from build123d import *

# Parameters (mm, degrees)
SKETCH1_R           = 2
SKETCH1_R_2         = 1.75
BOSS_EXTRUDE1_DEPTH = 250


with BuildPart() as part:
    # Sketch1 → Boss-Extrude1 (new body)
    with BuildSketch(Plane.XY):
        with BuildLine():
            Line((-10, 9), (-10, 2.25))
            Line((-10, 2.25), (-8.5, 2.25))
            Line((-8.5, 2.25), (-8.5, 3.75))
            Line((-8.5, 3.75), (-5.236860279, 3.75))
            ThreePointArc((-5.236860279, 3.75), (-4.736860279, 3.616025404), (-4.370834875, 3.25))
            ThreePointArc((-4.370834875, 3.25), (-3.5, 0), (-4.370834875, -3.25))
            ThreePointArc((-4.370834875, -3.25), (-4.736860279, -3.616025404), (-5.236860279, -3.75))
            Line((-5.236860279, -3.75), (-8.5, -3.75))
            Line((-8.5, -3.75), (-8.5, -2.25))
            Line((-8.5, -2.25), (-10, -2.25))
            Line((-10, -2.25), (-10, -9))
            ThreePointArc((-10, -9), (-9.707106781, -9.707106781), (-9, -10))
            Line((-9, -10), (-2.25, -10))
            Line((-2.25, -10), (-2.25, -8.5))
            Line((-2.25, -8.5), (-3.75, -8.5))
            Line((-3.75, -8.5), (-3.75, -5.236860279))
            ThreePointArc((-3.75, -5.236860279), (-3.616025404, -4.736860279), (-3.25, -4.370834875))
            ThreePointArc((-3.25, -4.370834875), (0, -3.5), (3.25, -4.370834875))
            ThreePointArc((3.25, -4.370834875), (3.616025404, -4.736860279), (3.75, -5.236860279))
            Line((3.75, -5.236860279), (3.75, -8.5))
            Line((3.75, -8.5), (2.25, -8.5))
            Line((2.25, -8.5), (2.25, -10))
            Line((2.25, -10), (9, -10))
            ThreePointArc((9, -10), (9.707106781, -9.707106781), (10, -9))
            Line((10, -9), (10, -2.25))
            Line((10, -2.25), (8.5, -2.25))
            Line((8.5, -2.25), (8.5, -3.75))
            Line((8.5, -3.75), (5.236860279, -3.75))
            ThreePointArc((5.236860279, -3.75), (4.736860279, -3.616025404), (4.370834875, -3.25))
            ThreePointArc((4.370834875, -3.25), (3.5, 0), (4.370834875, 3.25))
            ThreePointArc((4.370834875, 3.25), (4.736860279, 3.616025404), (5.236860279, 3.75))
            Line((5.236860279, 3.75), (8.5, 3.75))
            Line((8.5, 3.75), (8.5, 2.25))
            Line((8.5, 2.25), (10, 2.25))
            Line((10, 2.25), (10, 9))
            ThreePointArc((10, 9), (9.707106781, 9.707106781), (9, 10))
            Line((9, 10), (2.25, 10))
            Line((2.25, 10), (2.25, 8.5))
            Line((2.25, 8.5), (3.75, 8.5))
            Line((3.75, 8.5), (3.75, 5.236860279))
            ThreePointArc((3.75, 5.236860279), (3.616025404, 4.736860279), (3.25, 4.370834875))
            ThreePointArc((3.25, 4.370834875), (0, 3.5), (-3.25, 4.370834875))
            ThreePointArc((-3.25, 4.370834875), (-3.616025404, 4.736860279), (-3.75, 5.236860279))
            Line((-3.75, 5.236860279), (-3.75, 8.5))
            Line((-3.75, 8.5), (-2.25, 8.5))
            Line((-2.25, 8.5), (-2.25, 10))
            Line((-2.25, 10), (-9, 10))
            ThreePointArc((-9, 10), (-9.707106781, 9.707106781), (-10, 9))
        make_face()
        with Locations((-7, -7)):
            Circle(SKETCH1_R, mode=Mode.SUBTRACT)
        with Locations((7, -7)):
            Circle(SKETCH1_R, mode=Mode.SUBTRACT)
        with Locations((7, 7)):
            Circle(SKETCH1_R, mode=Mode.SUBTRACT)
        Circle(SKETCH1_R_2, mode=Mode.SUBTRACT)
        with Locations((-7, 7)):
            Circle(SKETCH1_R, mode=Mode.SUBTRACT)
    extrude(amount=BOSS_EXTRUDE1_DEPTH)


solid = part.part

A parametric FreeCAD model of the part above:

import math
import FreeCAD as App
import Part
import Sketcher
from FreeCAD import Vector

doc = App.newDocument("Part")
body = doc.addObject("PartDesign::Body", "Body")

sketch1 = body.newObject("Sketcher::SketchObject", "Sketch")
sketch1.AttachmentSupport = (doc.getObject("XY_Plane"), [""])
sketch1.MapMode = "FlatFace"
sketch1.addGeometry(Part.LineSegment(Vector(-10, 9, 0), Vector(-10, 2.2, 0)), False)
sketch1.addGeometry(Part.LineSegment(Vector(-10, 2.2, 0), Vector(-8.5, 2.2, 0)), False)
sketch1.addGeometry(Part.LineSegment(Vector(-8.5, 2.2, 0), Vector(-8.5, 3.8, 0)), False)
sketch1.addGeometry(Part.LineSegment(Vector(-8.5, 3.8, 0), Vector(-5.2, 3.8, 0)), False)
sketch1.addGeometry(Part.ArcOfCircle(Part.Circle(Vector(-5.2, 2.8, 0), Vector(0, 0, 1), 1), math.radians(30), math.radians(90)), False)
sketch1.addGeometry(Part.ArcOfCircle(Part.Circle(Vector(-10, 0, 0), Vector(0, 0, 1), 6.5), math.radians(-30), math.radians(30)), False)
sketch1.addGeometry(Part.ArcOfCircle(Part.Circle(Vector(-5.2, -2.8, 0), Vector(0, 0, 1), 1), math.radians(-90), math.radians(-30)), False)
sketch1.addGeometry(Part.LineSegment(Vector(-5.2, -3.8, 0), Vector(-8.5, -3.8, 0)), False)
sketch1.addGeometry(Part.LineSegment(Vector(-8.5, -3.8, 0), Vector(-8.5, -2.2, 0)), False)
sketch1.addGeometry(Part.LineSegment(Vector(-8.5, -2.2, 0), Vector(-10, -2.2, 0)), False)
sketch1.addGeometry(Part.LineSegment(Vector(-10, -2.2, 0), Vector(-10, -9, 0)), False)
sketch1.addGeometry(Part.ArcOfCircle(Part.Circle(Vector(-9, -9, 0), Vector(0, 0, 1), 1), math.radians(-180), math.radians(-90)), False)
sketch1.addGeometry(Part.LineSegment(Vector(-9, -10, 0), Vector(-2.2, -10, 0)), False)
sketch1.addGeometry(Part.LineSegment(Vector(-2.2, -10, 0), Vector(-2.2, -8.5, 0)), False)
sketch1.addGeometry(Part.LineSegment(Vector(-2.2, -8.5, 0), Vector(-3.8, -8.5, 0)), False)
sketch1.addGeometry(Part.LineSegment(Vector(-3.8, -8.5, 0), Vector(-3.8, -5.2, 0)), False)
sketch1.addGeometry(Part.ArcOfCircle(Part.Circle(Vector(-2.8, -5.2, 0), Vector(0, 0, 1), 1), math.radians(120), math.radians(180)), False)
sketch1.addGeometry(Part.ArcOfCircle(Part.Circle(Vector(0, -10, 0), Vector(0, 0, 1), 6.5), math.radians(60), math.radians(120)), False)
sketch1.addGeometry(Part.ArcOfCircle(Part.Circle(Vector(2.8, -5.2, 0), Vector(0, 0, 1), 1), math.radians(0), math.radians(60)), False)
sketch1.addGeometry(Part.LineSegment(Vector(3.8, -5.2, 0), Vector(3.8, -8.5, 0)), False)
sketch1.addGeometry(Part.LineSegment(Vector(3.8, -8.5, 0), Vector(2.2, -8.5, 0)), False)
sketch1.addGeometry(Part.LineSegment(Vector(2.2, -8.5, 0), Vector(2.2, -10, 0)), False)
sketch1.addGeometry(Part.LineSegment(Vector(2.2, -10, 0), Vector(9, -10, 0)), False)
sketch1.addGeometry(Part.ArcOfCircle(Part.Circle(Vector(9, -9, 0), Vector(0, 0, 1), 1), math.radians(-90), math.radians(0)), False)
sketch1.addGeometry(Part.LineSegment(Vector(10, -9, 0), Vector(10, -2.2, 0)), False)
sketch1.addGeometry(Part.LineSegment(Vector(10, -2.2, 0), Vector(8.5, -2.2, 0)), False)
sketch1.addGeometry(Part.LineSegment(Vector(8.5, -2.2, 0), Vector(8.5, -3.8, 0)), False)
sketch1.addGeometry(Part.LineSegment(Vector(8.5, -3.8, 0), Vector(5.2, -3.8, 0)), False)
sketch1.addGeometry(Part.ArcOfCircle(Part.Circle(Vector(5.2, -2.8, 0), Vector(0, 0, 1), 1), math.radians(-150), math.radians(-90)), False)
sketch1.addGeometry(Part.ArcOfCircle(Part.Circle(Vector(10, 0, 0), Vector(0, 0, 1), 6.5), math.radians(150), math.radians(210)), False)
sketch1.addGeometry(Part.ArcOfCircle(Part.Circle(Vector(5.2, 2.8, 0), Vector(0, 0, 1), 1), math.radians(90), math.radians(150)), False)
sketch1.addGeometry(Part.LineSegment(Vector(5.2, 3.8, 0), Vector(8.5, 3.8, 0)), False)
sketch1.addGeometry(Part.LineSegment(Vector(8.5, 3.8, 0), Vector(8.5, 2.2, 0)), False)
sketch1.addGeometry(Part.LineSegment(Vector(8.5, 2.2, 0), Vector(10, 2.2, 0)), False)
sketch1.addGeometry(Part.LineSegment(Vector(10, 2.2, 0), Vector(10, 9, 0)), False)
sketch1.addGeometry(Part.ArcOfCircle(Part.Circle(Vector(9, 9, 0), Vector(0, 0, 1), 1), math.radians(0), math.radians(90)), False)
sketch1.addGeometry(Part.LineSegment(Vector(9, 10, 0), Vector(2.2, 10, 0)), False)
sketch1.addGeometry(Part.LineSegment(Vector(2.2, 10, 0), Vector(2.2, 8.5, 0)), False)
sketch1.addGeometry(Part.LineSegment(Vector(2.2, 8.5, 0), Vector(3.8, 8.5, 0)), False)
sketch1.addGeometry(Part.LineSegment(Vector(3.8, 8.5, 0), Vector(3.8, 5.2, 0)), False)
sketch1.addGeometry(Part.ArcOfCircle(Part.Circle(Vector(2.8, 5.2, 0), Vector(0, 0, 1), 1), math.radians(-60), math.radians(0)), False)
sketch1.addGeometry(Part.ArcOfCircle(Part.Circle(Vector(0, 10, 0), Vector(0, 0, 1), 6.5), math.radians(-120), math.radians(-60)), False)
sketch1.addGeometry(Part.ArcOfCircle(Part.Circle(Vector(-2.8, 5.2, 0), Vector(0, 0, 1), 1), math.radians(180), math.radians(240)), False)
sketch1.addGeometry(Part.LineSegment(Vector(-3.8, 5.2, 0), Vector(-3.8, 8.5, 0)), False)
sketch1.addGeometry(Part.LineSegment(Vector(-3.8, 8.5, 0), Vector(-2.2, 8.5, 0)), False)
sketch1.addGeometry(Part.LineSegment(Vector(-2.2, 8.5, 0), Vector(-2.2, 10, 0)), False)
sketch1.addGeometry(Part.LineSegment(Vector(-2.2, 10, 0), Vector(-9, 10, 0)), False)
sketch1.addGeometry(Part.ArcOfCircle(Part.Circle(Vector(-9, 9, 0), Vector(0, 0, 1), 1), math.radians(90), math.radians(180)), False)
sketch1.addGeometry(Part.Circle(Vector(-7, -7, 0), Vector(0, 0, 1), 2), False)
sketch1.addGeometry(Part.Circle(Vector(7, -7, 0), Vector(0, 0, 1), 2), False)
sketch1.addGeometry(Part.Circle(Vector(-7, 7, 0), Vector(0, 0, 1), 2), False)
sketch1.addGeometry(Part.Circle(Vector(0, 0, 0), Vector(0, 0, 1), 1.8), False)
sketch1.addGeometry(Part.Circle(Vector(7, 7, 0), Vector(0, 0, 1), 2), False)
sketch1.addConstraint(Sketcher.Constraint("Coincident", 0, 2, 1, 1))
sketch1.addConstraint(Sketcher.Constraint("Coincident", 1, 2, 2, 1))
sketch1.addConstraint(Sketcher.Constraint("Coincident", 2, 2, 3, 1))
sketch1.addConstraint(Sketcher.Constraint("Tangent", 3, 2, 4, 2))
sketch1.addConstraint(Sketcher.Constraint("Tangent", 4, 1, 5, 2))
sketch1.addConstraint(Sketcher.Constraint("Tangent", 5, 1, 6, 2))
sketch1.addConstraint(Sketcher.Constraint("Tangent", 6, 1, 7, 1))
sketch1.addConstraint(Sketcher.Constraint("Coincident", 7, 2, 8, 1))
sketch1.addConstraint(Sketcher.Constraint("Coincident", 8, 2, 9, 1))
sketch1.addConstraint(Sketcher.Constraint("Coincident", 9, 2, 10, 1))
sketch1.addConstraint(Sketcher.Constraint("Tangent", 10, 2, 11, 1))
sketch1.addConstraint(Sketcher.Constraint("Tangent", 11, 2, 12, 1))
sketch1.addConstraint(Sketcher.Constraint("Coincident", 12, 2, 13, 1))
sketch1.addConstraint(Sketcher.Constraint("Coincident", 13, 2, 14, 1))
sketch1.addConstraint(Sketcher.Constraint("Coincident", 14, 2, 15, 1))
sketch1.addConstraint(Sketcher.Constraint("Tangent", 15, 2, 16, 2))
sketch1.addConstraint(Sketcher.Constraint("Tangent", 16, 1, 17, 2))
sketch1.addConstraint(Sketcher.Constraint("Tangent", 17, 1, 18, 2))
sketch1.addConstraint(Sketcher.Constraint("Tangent", 18, 1, 19, 1))
sketch1.addConstraint(Sketcher.Constraint("Coincident", 19, 2, 20, 1))
sketch1.addConstraint(Sketcher.Constraint("Coincident", 20, 2, 21, 1))
sketch1.addConstraint(Sketcher.Constraint("Coincident", 21, 2, 22, 1))
sketch1.addConstraint(Sketcher.Constraint("Tangent", 22, 2, 23, 1))
sketch1.addConstraint(Sketcher.Constraint("Tangent", 23, 2, 24, 1))
sketch1.addConstraint(Sketcher.Constraint("Coincident", 24, 2, 25, 1))
sketch1.addConstraint(Sketcher.Constraint("Coincident", 25, 2, 26, 1))
sketch1.addConstraint(Sketcher.Constraint("Coincident", 26, 2, 27, 1))
sketch1.addConstraint(Sketcher.Constraint("Tangent", 27, 2, 28, 2))
sketch1.addConstraint(Sketcher.Constraint("Tangent", 28, 1, 29, 2))
sketch1.addConstraint(Sketcher.Constraint("Tangent", 29, 1, 30, 2))
sketch1.addConstraint(Sketcher.Constraint("Tangent", 30, 1, 31, 1))
sketch1.addConstraint(Sketcher.Constraint("Coincident", 31, 2, 32, 1))
sketch1.addConstraint(Sketcher.Constraint("Coincident", 32, 2, 33, 1))
sketch1.addConstraint(Sketcher.Constraint("Coincident", 33, 2, 34, 1))
sketch1.addConstraint(Sketcher.Constraint("Tangent", 34, 2, 35, 1))
sketch1.addConstraint(Sketcher.Constraint("Tangent", 35, 2, 36, 1))
sketch1.addConstraint(Sketcher.Constraint("Coincident", 36, 2, 37, 1))
sketch1.addConstraint(Sketcher.Constraint("Coincident", 37, 2, 38, 1))
sketch1.addConstraint(Sketcher.Constraint("Coincident", 38, 2, 39, 1))
sketch1.addConstraint(Sketcher.Constraint("Tangent", 39, 2, 40, 2))
sketch1.addConstraint(Sketcher.Constraint("Tangent", 40, 1, 41, 2))
sketch1.addConstraint(Sketcher.Constraint("Tangent", 41, 1, 42, 2))
sketch1.addConstraint(Sketcher.Constraint("Tangent", 42, 1, 43, 1))
sketch1.addConstraint(Sketcher.Constraint("Coincident", 43, 2, 44, 1))
sketch1.addConstraint(Sketcher.Constraint("Coincident", 44, 2, 45, 1))
sketch1.addConstraint(Sketcher.Constraint("Coincident", 45, 2, 46, 1))
sketch1.addConstraint(Sketcher.Constraint("Tangent", 46, 2, 47, 1))
sketch1.addConstraint(Sketcher.Constraint("Tangent", 47, 2, 0, 1))
sketch1.addConstraint(Sketcher.Constraint("Vertical", 0))
sketch1.addConstraint(Sketcher.Constraint("Horizontal", 1))
sketch1.addConstraint(Sketcher.Constraint("Vertical", 2))
sketch1.addConstraint(Sketcher.Constraint("Horizontal", 3))
sketch1.addConstraint(Sketcher.Constraint("Horizontal", 7))
sketch1.addConstraint(Sketcher.Constraint("Vertical", 8))
sketch1.addConstraint(Sketcher.Constraint("Horizontal", 9))
sketch1.addConstraint(Sketcher.Constraint("Vertical", 10))
sketch1.addConstraint(Sketcher.Constraint("Horizontal", 12))
sketch1.addConstraint(Sketcher.Constraint("Vertical", 13))
sketch1.addConstraint(Sketcher.Constraint("Horizontal", 14))
sketch1.addConstraint(Sketcher.Constraint("Vertical", 15))
sketch1.addConstraint(Sketcher.Constraint("Vertical", 19))
sketch1.addConstraint(Sketcher.Constraint("Horizontal", 20))
sketch1.addConstraint(Sketcher.Constraint("Vertical", 21))
sketch1.addConstraint(Sketcher.Constraint("Horizontal", 22))
sketch1.addConstraint(Sketcher.Constraint("Vertical", 24))
sketch1.addConstraint(Sketcher.Constraint("Horizontal", 25))
sketch1.addConstraint(Sketcher.Constraint("Vertical", 26))
sketch1.addConstraint(Sketcher.Constraint("Horizontal", 27))
sketch1.addConstraint(Sketcher.Constraint("Horizontal", 31))
sketch1.addConstraint(Sketcher.Constraint("Vertical", 32))
sketch1.addConstraint(Sketcher.Constraint("Horizontal", 33))
sketch1.addConstraint(Sketcher.Constraint("Vertical", 34))
sketch1.addConstraint(Sketcher.Constraint("Horizontal", 36))
sketch1.addConstraint(Sketcher.Constraint("Vertical", 37))
sketch1.addConstraint(Sketcher.Constraint("Horizontal", 38))
sketch1.addConstraint(Sketcher.Constraint("Vertical", 39))
sketch1.addConstraint(Sketcher.Constraint("Vertical", 43))
sketch1.addConstraint(Sketcher.Constraint("Horizontal", 44))
sketch1.addConstraint(Sketcher.Constraint("Vertical", 45))
sketch1.addConstraint(Sketcher.Constraint("Horizontal", 46))
sketch1.addConstraint(Sketcher.Constraint("Coincident", 51, 3, -1, 1))
sketch1.addConstraint(Sketcher.Constraint("Equal", 4, 6))
sketch1.addConstraint(Sketcher.Constraint("Equal", 6, 11))
sketch1.addConstraint(Sketcher.Constraint("Equal", 11, 16))
sketch1.addConstraint(Sketcher.Constraint("Equal", 5, 17))
sketch1.addConstraint(Sketcher.Constraint("Equal", 16, 18))
sketch1.addConstraint(Sketcher.Constraint("Equal", 18, 23))
sketch1.addConstraint(Sketcher.Constraint("Equal", 23, 28))
sketch1.addConstraint(Sketcher.Constraint("Equal", 17, 29))
sketch1.addConstraint(Sketcher.Constraint("Equal", 28, 30))
sketch1.addConstraint(Sketcher.Constraint("Equal", 30, 35))
sketch1.addConstraint(Sketcher.Constraint("Equal", 35, 40))
sketch1.addConstraint(Sketcher.Constraint("Equal", 29, 41))
sketch1.addConstraint(Sketcher.Constraint("Equal", 40, 42))
sketch1.addConstraint(Sketcher.Constraint("Equal", 42, 47))
sketch1.addConstraint(Sketcher.Constraint("Equal", 48, 49))
sketch1.addConstraint(Sketcher.Constraint("Equal", 49, 50))
sketch1.addConstraint(Sketcher.Constraint("Equal", 50, 52))
sketch1.addConstraint(Sketcher.Constraint("Symmetric", 4, 3, 28, 3, -1, 1))
sketch1.addConstraint(Sketcher.Constraint("Symmetric", 6, 3, 30, 3, -1, 1))
sketch1.addConstraint(Sketcher.Constraint("Symmetric", 11, 3, 35, 3, -1, 1))
sketch1.addConstraint(Sketcher.Constraint("Symmetric", 16, 3, 40, 3, -1, 1))
sketch1.addConstraint(Sketcher.Constraint("Symmetric", 18, 3, 42, 3, -1, 1))
sketch1.addConstraint(Sketcher.Constraint("Symmetric", 23, 3, 47, 3, -1, 1))
sketch1.addConstraint(Sketcher.Constraint("Symmetric", 49, 3, 50, 3, -1, 1))
sketch1.addConstraint(Sketcher.Constraint("Symmetric", 48, 3, 52, 3, -1, 1))
sketch1.addConstraint(Sketcher.Constraint("Symmetric", 1, 2, 25, 2, -1, 1))
sketch1.addConstraint(Sketcher.Constraint("Symmetric", 8, 2, 32, 2, -1, 1))
sketch1.addConstraint(Sketcher.Constraint("Symmetric", 13, 2, 37, 2, -1, 1))
sketch1.addConstraint(Sketcher.Constraint("Symmetric", 20, 2, 44, 2, -1, 1))
sketch1.addConstraint(Sketcher.Constraint("Symmetric", 16, 3, 18, 3, -2))
sketch1.addConstraint(Sketcher.Constraint("Symmetric", 11, 3, 23, 3, -2))
sketch1.addConstraint(Sketcher.Constraint("Symmetric", 6, 3, 28, 3, -2))
sketch1.addConstraint(Sketcher.Constraint("Symmetric", 48, 3, 49, 3, -2))
sketch1.addConstraint(Sketcher.Constraint("Symmetric", 13, 2, 20, 2, -2))
sketch1.addConstraint(Sketcher.Constraint("Symmetric", 8, 2, 25, 2, -2))
sketch1.addConstraint(Sketcher.Constraint("Horizontal", 17, 3, 11, 2))
sketch1.addConstraint(Sketcher.Constraint("Vertical", 5, 3, 0, 2))
sketch1.addConstraint(Sketcher.Constraint("Equal", 9, 14))
sketch1.addConstraint(Sketcher.Constraint("Equal", 46, 0))
sketch1.addConstraint(Sketcher.Constraint("Equal", 44, 2))
sketch1.addConstraint(Sketcher.Constraint("Equal", 8, 13))
sketch1.addConstraint(Sketcher.Constraint("Equal", 31, 15))
sketch1.addConstraint(Sketcher.Constraint("Diameter", 48, 4.0))
sketch1.addConstraint(Sketcher.Constraint("Radius", 4, 1.0))
sketch1.addConstraint(Sketcher.Constraint("Diameter", 51, 3.5))
sketch1.addConstraint(Sketcher.Constraint("Radius", 5, 6.5))
sketch1.addConstraint(Sketcher.Constraint("DistanceX", 1, 1, 1, 2, 1.5))
sketch1.addConstraint(Sketcher.Constraint("DistanceX", 5, 3, -1, 1, 10.0))
sketch1.addConstraint(Sketcher.Constraint("DistanceX", 48, 3, -1, 1, 7.0))
sketch1.addConstraint(Sketcher.Constraint("DistanceY", 48, 3, -1, 1, 7.0))
sketch1.addConstraint(Sketcher.Constraint("DistanceX", 12, 1, 12, 2, 6.75))
pad1 = body.newObject("PartDesign::Pad", "Pad")
pad1.Profile = sketch1
pad1.Length = 250

doc.recompute()
